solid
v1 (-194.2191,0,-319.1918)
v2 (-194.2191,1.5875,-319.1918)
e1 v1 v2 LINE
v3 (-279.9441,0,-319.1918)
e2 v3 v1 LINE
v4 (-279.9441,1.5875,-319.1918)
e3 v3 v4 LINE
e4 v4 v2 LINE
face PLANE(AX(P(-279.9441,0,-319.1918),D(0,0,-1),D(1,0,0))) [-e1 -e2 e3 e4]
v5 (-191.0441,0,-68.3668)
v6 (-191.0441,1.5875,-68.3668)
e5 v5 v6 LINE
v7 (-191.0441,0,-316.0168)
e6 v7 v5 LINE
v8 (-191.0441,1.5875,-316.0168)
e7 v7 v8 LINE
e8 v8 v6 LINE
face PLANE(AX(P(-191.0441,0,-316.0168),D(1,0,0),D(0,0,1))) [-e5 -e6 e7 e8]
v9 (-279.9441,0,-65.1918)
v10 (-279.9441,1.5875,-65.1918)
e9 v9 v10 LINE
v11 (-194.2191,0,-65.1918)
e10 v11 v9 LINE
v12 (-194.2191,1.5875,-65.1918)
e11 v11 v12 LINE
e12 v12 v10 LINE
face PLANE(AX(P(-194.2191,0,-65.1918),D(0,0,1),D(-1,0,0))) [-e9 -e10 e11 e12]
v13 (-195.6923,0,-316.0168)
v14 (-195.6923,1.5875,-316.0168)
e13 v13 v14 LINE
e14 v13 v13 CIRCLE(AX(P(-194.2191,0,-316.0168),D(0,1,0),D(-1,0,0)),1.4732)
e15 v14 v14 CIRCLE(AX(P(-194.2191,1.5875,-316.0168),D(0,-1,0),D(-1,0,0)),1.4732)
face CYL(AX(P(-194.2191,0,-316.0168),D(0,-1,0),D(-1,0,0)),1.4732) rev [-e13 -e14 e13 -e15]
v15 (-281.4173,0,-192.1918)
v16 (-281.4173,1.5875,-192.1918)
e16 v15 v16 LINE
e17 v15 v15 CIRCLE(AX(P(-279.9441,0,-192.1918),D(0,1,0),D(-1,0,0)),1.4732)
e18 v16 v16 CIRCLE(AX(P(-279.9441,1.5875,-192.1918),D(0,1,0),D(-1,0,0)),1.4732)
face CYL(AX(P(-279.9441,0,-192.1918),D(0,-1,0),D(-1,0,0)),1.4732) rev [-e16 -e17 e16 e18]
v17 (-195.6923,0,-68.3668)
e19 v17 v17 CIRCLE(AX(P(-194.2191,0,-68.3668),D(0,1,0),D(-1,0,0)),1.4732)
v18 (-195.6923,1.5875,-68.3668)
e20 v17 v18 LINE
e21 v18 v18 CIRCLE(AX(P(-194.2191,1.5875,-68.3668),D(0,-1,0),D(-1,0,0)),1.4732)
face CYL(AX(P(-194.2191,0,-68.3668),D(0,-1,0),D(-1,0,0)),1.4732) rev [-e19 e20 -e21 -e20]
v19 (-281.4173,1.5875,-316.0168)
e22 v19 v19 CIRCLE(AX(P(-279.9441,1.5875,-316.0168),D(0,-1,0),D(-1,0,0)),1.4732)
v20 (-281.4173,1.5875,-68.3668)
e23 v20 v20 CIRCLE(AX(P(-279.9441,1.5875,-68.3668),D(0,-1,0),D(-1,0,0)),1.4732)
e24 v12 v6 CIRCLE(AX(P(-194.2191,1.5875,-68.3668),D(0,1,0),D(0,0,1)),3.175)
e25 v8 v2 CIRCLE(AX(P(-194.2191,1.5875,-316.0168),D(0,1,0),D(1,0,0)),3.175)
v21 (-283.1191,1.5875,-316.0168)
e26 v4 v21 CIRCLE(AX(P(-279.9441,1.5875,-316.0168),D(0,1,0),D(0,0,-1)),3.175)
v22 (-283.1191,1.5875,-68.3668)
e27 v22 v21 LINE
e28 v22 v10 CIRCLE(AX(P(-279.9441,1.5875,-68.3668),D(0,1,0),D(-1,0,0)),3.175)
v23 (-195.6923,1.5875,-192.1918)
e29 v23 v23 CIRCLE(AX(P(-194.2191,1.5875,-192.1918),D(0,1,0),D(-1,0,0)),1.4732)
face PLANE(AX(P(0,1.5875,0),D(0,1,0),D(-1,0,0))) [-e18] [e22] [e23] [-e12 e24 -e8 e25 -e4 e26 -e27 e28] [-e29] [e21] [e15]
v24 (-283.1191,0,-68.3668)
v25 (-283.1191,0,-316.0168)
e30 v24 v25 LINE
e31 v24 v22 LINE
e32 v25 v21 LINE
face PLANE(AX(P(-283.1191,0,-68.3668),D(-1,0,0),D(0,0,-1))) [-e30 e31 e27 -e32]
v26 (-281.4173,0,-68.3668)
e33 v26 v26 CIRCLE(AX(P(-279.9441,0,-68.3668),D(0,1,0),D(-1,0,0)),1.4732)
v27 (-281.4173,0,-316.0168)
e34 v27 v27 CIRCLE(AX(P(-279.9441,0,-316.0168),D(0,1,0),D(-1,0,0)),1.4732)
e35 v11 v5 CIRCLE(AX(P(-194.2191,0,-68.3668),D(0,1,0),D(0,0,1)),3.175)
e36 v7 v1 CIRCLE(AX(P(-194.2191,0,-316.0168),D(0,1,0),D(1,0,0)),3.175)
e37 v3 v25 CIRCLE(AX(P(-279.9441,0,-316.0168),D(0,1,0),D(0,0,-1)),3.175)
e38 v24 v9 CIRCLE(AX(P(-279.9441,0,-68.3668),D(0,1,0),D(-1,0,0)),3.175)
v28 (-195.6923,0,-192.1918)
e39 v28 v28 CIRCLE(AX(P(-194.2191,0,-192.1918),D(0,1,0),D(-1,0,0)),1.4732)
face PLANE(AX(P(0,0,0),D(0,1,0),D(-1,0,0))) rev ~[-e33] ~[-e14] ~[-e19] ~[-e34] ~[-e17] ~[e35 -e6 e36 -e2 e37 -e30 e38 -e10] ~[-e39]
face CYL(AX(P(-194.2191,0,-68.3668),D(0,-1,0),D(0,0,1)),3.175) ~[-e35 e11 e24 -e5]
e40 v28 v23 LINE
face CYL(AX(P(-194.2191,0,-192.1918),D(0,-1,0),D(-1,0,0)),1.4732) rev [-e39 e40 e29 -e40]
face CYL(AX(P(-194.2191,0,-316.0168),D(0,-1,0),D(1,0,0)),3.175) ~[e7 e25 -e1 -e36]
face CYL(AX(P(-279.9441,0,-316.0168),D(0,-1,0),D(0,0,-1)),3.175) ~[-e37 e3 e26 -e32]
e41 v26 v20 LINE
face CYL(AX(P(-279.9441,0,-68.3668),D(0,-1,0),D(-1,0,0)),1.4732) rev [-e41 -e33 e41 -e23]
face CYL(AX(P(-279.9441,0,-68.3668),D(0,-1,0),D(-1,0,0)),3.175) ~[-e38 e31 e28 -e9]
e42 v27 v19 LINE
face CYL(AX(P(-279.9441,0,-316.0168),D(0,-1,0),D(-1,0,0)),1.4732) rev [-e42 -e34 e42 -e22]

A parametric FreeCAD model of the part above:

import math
import FreeCAD as App
import Part
import Sketcher
Q = App.Units.Quantity

doc = App.newDocument("Part")
body = doc.addObject("PartDesign::Body", "Body")

sketch1 = body.newObject("Sketcher::SketchObject", "Sketch")
sketch1.AttachmentSupport = (doc.getObject("XZ_Plane"), [""])
sketch1.MapMode = "FlatFace"
sketch1.addGeometry(Part.ArcOfCircle(Part.Circle(App.Vector(-194.2, -316, 0), App.Vector(0, 0, 1), 3.2), math.radians(-90), math.radians(0)), False)
sketch1.addGeometry(Part.LineSegment(App.Vector(-194.2, -319.2, 0), App.Vector(-279.9, -319.2, 0)), False)
sketch1.addGeometry(Part.ArcOfCircle(Part.Circle(App.Vector(-279.9, -316, 0), App.Vector(0, 0, 1), 3.2), math.radians(180), math.radians(270)), False)
sketch1.addGeometry(Part.LineSegment(App.Vector(-283.1, -316, 0), App.Vector(-283.1, -68.4, 0)), False)
sketch1.addGeometry(Part.ArcOfCircle(Part.Circle(App.Vector(-279.9, -68.4, 0), App.Vector(0, 0, 1), 3.2), math.radians(90), math.radians(180)), False)
sketch1.addGeometry(Part.LineSegment(App.Vector(-279.9, -65.2, 0), App.Vector(-194.2, -65.2, 0)), False)
sketch1.addGeometry(Part.ArcOfCircle(Part.Circle(App.Vector(-194.2, -68.4, 0), App.Vector(0, 0, 1), 3.2), math.radians(0), math.radians(90)), False)
sketch1.addGeometry(Part.LineSegment(App.Vector(-191, -68.4, 0), App.Vector(-191, -316, 0)), False)
sketch1.addGeometry(Part.Circle(App.Vector(-194.2, -192.2, 0), App.Vector(0, 0, 1), 1.5), False)
sketch1.addGeometry(Part.Circle(App.Vector(-279.9, -192.2, 0), App.Vector(0, 0, 1), 1.5), False)
sketch1.addConstraint(Sketcher.Constraint("Tangent", 0, 1, 1, 1))
sketch1.addConstraint(Sketcher.Constraint("Tangent", 1, 2, 2, 2))
sketch1.addConstraint(Sketcher.Constraint("Tangent", 2, 1, 3, 1))
sketch1.addConstraint(Sketcher.Constraint("Tangent", 3, 2, 4, 2))
sketch1.addConstraint(Sketcher.Constraint("Tangent", 4, 1, 5, 1))
sketch1.addConstraint(Sketcher.Constraint("Tangent", 5, 2, 6, 2))
sketch1.addConstraint(Sketcher.Constraint("Tangent", 6, 1, 7, 1))
sketch1.addConstraint(Sketcher.Constraint("Tangent", 7, 2, 0, 2))
sketch1.addConstraint(Sketcher.Constraint("Horizontal", 1))
sketch1.addConstraint(Sketcher.Constraint("Vertical", 3))
sketch1.addConstraint(Sketcher.Constraint("Horizontal", 5))
sketch1.addConstraint(Sketcher.Constraint("Vertical", 7))
sketch1.addConstraint(Sketcher.Constraint("Equal", 0, 2))
sketch1.addConstraint(Sketcher.Constraint("Equal", 2, 4))
sketch1.addConstraint(Sketcher.Constraint("Equal", 4, 6))
sketch1.addConstraint(Sketcher.Constraint("Equal", 8, 9))
sketch1.addConstraint(Sketcher.Constraint("Horizontal", 8, 3, 9, 3))
sketch1.addConstraint(Sketcher.Constraint("Vertical", 6, 3, 8, 3))
sketch1.addConstraint(Sketcher.Constraint("Vertical", 4, 3, 9, 3))
sketch1.addConstraint(Sketcher.Constraint("Diameter", 8, Q("0.116 in")))
sketch1.addConstraint(Sketcher.Constraint("Radius", 0, Q("0.125 in")))
sketch1.addConstraint(Sketcher.Constraint("DistanceY", 0, 1, 8, 3, Q("5 in")))
sketch1.addConstraint(Sketcher.Constraint("DistanceY", 9, 3, 4, 1, Q("5 in")))
sketch1.addConstraint(Sketcher.Constraint("DistanceX", 2, 1, 0, 3, Q("3.5 in")))
sketch1.addConstraint(Sketcher.Constraint("DistanceY", 0, 3, -1, 1, Q("12.4416 in")))
sketch1.addConstraint(Sketcher.Constraint("DistanceX", 0, 3, -1, 1, Q("194.219 mm")))
pad1 = body.newObject("PartDesign::Pad", "Pad")
pad1.Profile = sketch1
pad1.Length = Q("0.0625 in")
pad1.Reversed = True

sketch2 = body.newObject("Sketcher::SketchObject", "Sketch001")
sketch2.AttachmentSupport = (doc.getObject("XZ_Plane"), [""])
sketch2.MapMode = "FlatFace"
sketch2.addGeometry(Part.Circle(App.Vector(-194.2, -316, 0), App.Vector(0, 0, 1), 1.5), False)
sketch2.addGeometry(Part.Circle(App.Vector(-194.2, -68.4, 0), App.Vector(0, 0, 1), 1.5), False)
sketch2.addGeometry(Part.Circle(App.Vector(-279.9, -316, 0), App.Vector(0, 0, 1), 1.5), False)
sketch2.addGeometry(Part.Circle(App.Vector(-279.9, -68.4, 0), App.Vector(0, 0, 1), 1.5), False)
sketch2.addConstraint(Sketcher.Constraint("Equal", 0, 1))
sketch2.addConstraint(Sketcher.Constraint("Equal", 1, 2))
sketch2.addConstraint(Sketcher.Constraint("Equal", 2, 3))
sketch2.addConstraint(Sketcher.Constraint("Horizontal", 0, 3, 2, 3))
sketch2.addConstraint(Sketcher.Constraint("Horizontal", 1, 3, 3, 3))
sketch2.addConstraint(Sketcher.Constraint("Vertical", 0, 3, 1, 3))
sketch2.addConstraint(Sketcher.Constraint("Vertical", 2, 3, 3, 3))
sketch2.addConstraint(Sketcher.Constraint("Diameter", 0, Q("0.116 in")))
sketch2.addConstraint(Sketcher.Constraint("DistanceY", 0, 3, 1, 3, Q("9.75 in")))
sketch2.addConstraint(Sketcher.Constraint("DistanceX", 2, 3, 0, 3, Q("3.375 in")))
sketch2.addConstraint(Sketcher.Constraint("DistanceY", 0, 3, -1, 1, Q("12.4416 in")))
sketch2.addConstraint(Sketcher.Constraint("DistanceX", 0, 3, -1, 1, Q("194.219 mm")))
pocket1 = body.newObject("PartDesign::Pocket", "Pocket")
pocket1.Profile = sketch2
pocket1.Length = Q("0.0625 in")

doc.recompute()
